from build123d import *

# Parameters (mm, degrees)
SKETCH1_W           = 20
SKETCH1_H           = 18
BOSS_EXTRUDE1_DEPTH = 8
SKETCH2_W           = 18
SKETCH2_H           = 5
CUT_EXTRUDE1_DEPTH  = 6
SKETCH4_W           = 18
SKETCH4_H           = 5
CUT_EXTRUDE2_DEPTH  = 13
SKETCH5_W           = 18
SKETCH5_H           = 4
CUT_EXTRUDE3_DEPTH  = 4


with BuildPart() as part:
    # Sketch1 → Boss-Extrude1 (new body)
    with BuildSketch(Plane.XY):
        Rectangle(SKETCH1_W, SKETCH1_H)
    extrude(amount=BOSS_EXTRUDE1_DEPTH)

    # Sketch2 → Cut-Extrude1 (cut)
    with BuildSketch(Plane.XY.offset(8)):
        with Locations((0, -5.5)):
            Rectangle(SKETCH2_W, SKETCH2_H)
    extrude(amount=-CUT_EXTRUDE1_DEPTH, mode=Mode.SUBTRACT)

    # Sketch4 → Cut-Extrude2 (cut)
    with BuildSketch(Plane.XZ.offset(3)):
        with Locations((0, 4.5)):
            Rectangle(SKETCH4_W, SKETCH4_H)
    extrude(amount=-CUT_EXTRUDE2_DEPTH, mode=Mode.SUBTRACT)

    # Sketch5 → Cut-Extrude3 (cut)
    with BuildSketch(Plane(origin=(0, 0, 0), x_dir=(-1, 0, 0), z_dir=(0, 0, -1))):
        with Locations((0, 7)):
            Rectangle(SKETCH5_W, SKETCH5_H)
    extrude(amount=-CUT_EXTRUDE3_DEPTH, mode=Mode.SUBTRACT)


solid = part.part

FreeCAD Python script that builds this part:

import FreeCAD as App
import Part
import Sketcher

V = App.Vector
Q = App.Units.Quantity


def add_polygon(sketch, points):
    """Adds a closed chain of lines whose ends are joined by coincident constraints."""
    first, n = sketch.GeometryCount, len(points)
    for a, b in zip(points, points[1:] + points[:1]):
        sketch.addGeometry(Part.LineSegment(App.Vector(*a, 0), App.Vector(*b, 0)), False)
    for i in range(n):
        sketch.addConstraint(Sketcher.Constraint("Coincident", first + i, 2, first + (i + 1) % n, 1))

doc = App.newDocument("Part")
body = doc.addObject("PartDesign::Body", "Body")

# Sketch on XY plane
sketch1 = body.newObject("Sketcher::SketchObject", "Sketch")
sketch1.AttachmentSupport = (doc.getObject("XY_Plane"), [""])
sketch1.MapMode = "FlatFace"
add_polygon(sketch1, [(-10, 9), (-10, -9), (10, -9), (10, 9)])  # lines 0-3
sketch1.addConstraint([
    Sketcher.Constraint("Vertical", 0),
    Sketcher.Constraint("Horizontal", 1),
    Sketcher.Constraint("Vertical", 2),
    Sketcher.Constraint("Horizontal", 3),
    Sketcher.Constraint("Symmetric", 0, 2, 2, 2, -1, 1),
    Sketcher.Constraint("DistanceX", 1, 1, 1, 2, Q("20 mm")),
    Sketcher.Constraint("DistanceY", 0, 2, 0, 1, Q("18 mm")),
])
pad1 = body.newObject("PartDesign::Pad", "Pad")
pad1.Profile = sketch1
pad1.Length = 8

# Sketch on XY plane
sketch2 = body.newObject("Sketcher::SketchObject", "Sketch001")
sketch2.AttachmentSupport = (doc.getObject("XY_Plane"), [""])
sketch2.MapMode = "FlatFace"
sketch2.AttachmentOffset = App.Placement(V(0, 0, 8), App.Rotation())
add_polygon(sketch2, [(-9, -3), (-9, -8), (9, -8), (9, -3)])  # lines 0-3
sketch2.addConstraint([
    Sketcher.Constraint("Vertical", 0),
    Sketcher.Constraint("Horizontal", 1),
    Sketcher.Constraint("Vertical", 2),
    Sketcher.Constraint("Horizontal", 3),
    Sketcher.Constraint("DistanceX", 1, 1, 1, 2, Q("18 mm")),
    Sketcher.Constraint("DistanceY", 0, 2, 0, 1, Q("5 mm")),
    Sketcher.Constraint("DistanceX", 0, 2, -1, 1, Q("9 mm")),
    Sketcher.Constraint("DistanceY", 0, 2, -1, 1, Q("8 mm")),
])
pocket1 = body.newObject("PartDesign::Pocket", "Pocket")
pocket1.Profile = sketch2
pocket1.Length = 6

# Sketch on XZ plane
sketch3 = body.newObject("Sketcher::SketchObject", "Sketch002")
sketch3.AttachmentSupport = (doc.getObject("XZ_Plane"), [""])
sketch3.MapMode = "FlatFace"
sketch3.AttachmentOffset = App.Placement(V(0, 0, 3), App.Rotation())
add_polygon(sketch3, [(-9, 7), (-9, 2), (9, 2), (9, 7)])  # lines 0-3
sketch3.addConstraint([
    Sketcher.Constraint("Vertical", 0),
    Sketcher.Constraint("Horizontal", 1),
    Sketcher.Constraint("Vertical", 2),
    Sketcher.Constraint("Horizontal", 3),
    Sketcher.Constraint("DistanceX", 1, 1, 1, 2, Q("18 mm")),
    Sketcher.Constraint("DistanceY", 0, 2, 0, 1, Q("5 mm")),
    Sketcher.Constraint("DistanceX", 0, 2, -1, 1, Q("9 mm")),
    Sketcher.Constraint("DistanceY", -1, 1, 0, 2, Q("2 mm")),
])
pocket2 = body.newObject("PartDesign::Pocket", "Pocket001")
pocket2.Profile = sketch3
pocket2.Length = 13

# Sketch on XY plane
sketch4 = body.newObject("Sketcher::SketchObject", "Sketch003")
sketch4.AttachmentSupport = (doc.getObject("XY_Plane"), [""])
sketch4.MapMode = "FlatFace"
add_polygon(sketch4, [(9, 9), (9, 5), (-9, 5), (-9, 9)])  # lines 0-3
sketch4.addConstraint([
    Sketcher.Constraint("Vertical", 0),
    Sketcher.Constraint("Horizontal", 1),
    Sketcher.Constraint("Vertical", 2),
    Sketcher.Constraint("Horizontal", 3),
    Sketcher.Constraint("DistanceX", 1, 2, 1, 1, Q("18 mm")),
    Sketcher.Constraint("DistanceY", 0, 2, 0, 1, Q("4 mm")),
    Sketcher.Constraint("DistanceX", -1, 1, 0, 2, Q("9 mm")),
    Sketcher.Constraint("DistanceY", -1, 1, 0, 2, Q("5 mm")),
])
pocket3 = body.newObject("PartDesign::Pocket", "Pocket002")
pocket3.Profile = sketch4
pocket3.Length = 4
pocket3.Reversed = True

doc.recompute()
